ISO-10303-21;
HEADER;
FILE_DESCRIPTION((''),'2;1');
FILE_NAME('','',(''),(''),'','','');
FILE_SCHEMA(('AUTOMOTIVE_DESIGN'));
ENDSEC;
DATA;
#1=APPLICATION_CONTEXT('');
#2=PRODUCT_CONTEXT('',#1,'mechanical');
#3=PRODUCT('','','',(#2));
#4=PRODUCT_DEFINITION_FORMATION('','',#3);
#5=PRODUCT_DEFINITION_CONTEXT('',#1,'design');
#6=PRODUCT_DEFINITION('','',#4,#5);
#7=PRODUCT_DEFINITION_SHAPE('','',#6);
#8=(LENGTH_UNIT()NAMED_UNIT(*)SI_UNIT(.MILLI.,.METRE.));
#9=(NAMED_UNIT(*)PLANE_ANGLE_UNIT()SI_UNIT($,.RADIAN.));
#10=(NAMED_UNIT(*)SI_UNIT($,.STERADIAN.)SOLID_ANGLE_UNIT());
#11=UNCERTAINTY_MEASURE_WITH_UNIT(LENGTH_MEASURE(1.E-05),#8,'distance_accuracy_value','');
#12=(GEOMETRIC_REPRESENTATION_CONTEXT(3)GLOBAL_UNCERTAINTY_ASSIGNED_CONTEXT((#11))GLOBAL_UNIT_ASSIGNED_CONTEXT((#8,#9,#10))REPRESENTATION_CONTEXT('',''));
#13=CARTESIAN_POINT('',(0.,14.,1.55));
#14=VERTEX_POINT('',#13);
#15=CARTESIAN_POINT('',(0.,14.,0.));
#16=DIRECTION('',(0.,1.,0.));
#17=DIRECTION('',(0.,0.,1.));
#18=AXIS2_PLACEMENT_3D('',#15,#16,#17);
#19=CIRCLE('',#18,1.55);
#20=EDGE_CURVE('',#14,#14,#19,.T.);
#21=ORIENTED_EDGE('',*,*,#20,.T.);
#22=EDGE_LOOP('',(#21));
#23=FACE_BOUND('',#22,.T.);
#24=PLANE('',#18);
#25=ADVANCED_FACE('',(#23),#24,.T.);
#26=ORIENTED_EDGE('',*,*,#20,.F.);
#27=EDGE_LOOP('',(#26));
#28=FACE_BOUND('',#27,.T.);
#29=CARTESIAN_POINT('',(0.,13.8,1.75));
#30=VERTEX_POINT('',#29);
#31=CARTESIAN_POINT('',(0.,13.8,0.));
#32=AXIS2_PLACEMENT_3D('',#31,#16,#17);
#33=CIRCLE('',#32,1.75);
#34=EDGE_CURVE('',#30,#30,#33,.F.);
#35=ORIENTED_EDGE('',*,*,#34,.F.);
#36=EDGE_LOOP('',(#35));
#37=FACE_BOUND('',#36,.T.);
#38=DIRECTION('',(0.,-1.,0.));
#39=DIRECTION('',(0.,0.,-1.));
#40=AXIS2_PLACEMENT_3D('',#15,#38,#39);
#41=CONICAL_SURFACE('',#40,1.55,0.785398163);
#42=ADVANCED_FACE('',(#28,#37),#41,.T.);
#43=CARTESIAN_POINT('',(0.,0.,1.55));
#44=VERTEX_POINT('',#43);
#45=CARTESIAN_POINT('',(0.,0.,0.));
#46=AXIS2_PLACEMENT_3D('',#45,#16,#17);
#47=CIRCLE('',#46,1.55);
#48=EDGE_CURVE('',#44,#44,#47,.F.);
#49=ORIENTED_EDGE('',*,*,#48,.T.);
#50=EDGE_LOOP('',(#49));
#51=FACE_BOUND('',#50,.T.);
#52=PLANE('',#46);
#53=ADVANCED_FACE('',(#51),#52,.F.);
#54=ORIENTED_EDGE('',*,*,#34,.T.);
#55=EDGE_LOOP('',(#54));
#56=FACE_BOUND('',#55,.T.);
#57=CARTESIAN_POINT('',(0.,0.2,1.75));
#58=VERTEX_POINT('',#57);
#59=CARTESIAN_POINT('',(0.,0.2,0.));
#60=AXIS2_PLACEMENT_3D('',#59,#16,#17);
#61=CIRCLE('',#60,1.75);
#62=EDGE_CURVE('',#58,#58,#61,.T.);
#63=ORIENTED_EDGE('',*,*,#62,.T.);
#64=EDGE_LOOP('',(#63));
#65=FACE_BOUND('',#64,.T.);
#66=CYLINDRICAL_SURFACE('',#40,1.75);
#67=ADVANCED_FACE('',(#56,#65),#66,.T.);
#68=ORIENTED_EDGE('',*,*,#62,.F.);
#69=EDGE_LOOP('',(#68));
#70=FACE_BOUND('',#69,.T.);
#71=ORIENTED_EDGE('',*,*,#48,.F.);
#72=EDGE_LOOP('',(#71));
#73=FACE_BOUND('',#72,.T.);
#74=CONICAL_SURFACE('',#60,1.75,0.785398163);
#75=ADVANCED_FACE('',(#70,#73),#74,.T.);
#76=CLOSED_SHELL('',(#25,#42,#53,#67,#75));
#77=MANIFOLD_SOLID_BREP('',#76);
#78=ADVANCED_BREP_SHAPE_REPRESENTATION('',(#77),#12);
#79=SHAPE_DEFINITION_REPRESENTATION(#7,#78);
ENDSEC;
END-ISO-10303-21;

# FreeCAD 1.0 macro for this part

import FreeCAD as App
import Part
import Sketcher
Q = App.Units.Quantity


def edges_at(feature, points):
    """Names of the edges that pass closest to the given points."""
    edges = feature.Shape.Edges
    near = lambda p: min(range(len(edges)), key=lambda i: edges[i].distToShape(Part.Vertex(*p))[0])
    return sorted({f"Edge{near(p) + 1}" for p in points})

doc = App.newDocument("Part")
body = doc.addObject("PartDesign::Body", "Body")

sketch1 = doc.addObject("Sketcher::SketchObject", "Sketch")
body.addObject(sketch1)
sketch1.AttachmentSupport = (doc.XZ_Plane, [""])
sketch1.MapMode = "FlatFace"
sketch1.addGeometry(Part.Circle(App.Vector(0, 0, 0), App.Vector(0, 0, 1), 1.8), False)
sketch1.addConstraint(Sketcher.Constraint("Coincident", 0, 3, -1, 1))
sketch1.addConstraint(Sketcher.Constraint("Diameter", 0, Q("3.5 mm")))
pad1 = doc.addObject("PartDesign::Pad", "Pad")
body.addObject(pad1)
pad1.Profile = sketch1
pad1.Length = 14
pad1.Reversed = True
doc.recompute()

chamfer = doc.addObject("PartDesign::Chamfer", "Chamfer")
body.addObject(chamfer)
chamfer.Base = (pad1, edges_at(pad1, [(0, 0, -1.75), (0, 14, -1.75)]))
chamfer.Size = 0.2

doc.recompute()
